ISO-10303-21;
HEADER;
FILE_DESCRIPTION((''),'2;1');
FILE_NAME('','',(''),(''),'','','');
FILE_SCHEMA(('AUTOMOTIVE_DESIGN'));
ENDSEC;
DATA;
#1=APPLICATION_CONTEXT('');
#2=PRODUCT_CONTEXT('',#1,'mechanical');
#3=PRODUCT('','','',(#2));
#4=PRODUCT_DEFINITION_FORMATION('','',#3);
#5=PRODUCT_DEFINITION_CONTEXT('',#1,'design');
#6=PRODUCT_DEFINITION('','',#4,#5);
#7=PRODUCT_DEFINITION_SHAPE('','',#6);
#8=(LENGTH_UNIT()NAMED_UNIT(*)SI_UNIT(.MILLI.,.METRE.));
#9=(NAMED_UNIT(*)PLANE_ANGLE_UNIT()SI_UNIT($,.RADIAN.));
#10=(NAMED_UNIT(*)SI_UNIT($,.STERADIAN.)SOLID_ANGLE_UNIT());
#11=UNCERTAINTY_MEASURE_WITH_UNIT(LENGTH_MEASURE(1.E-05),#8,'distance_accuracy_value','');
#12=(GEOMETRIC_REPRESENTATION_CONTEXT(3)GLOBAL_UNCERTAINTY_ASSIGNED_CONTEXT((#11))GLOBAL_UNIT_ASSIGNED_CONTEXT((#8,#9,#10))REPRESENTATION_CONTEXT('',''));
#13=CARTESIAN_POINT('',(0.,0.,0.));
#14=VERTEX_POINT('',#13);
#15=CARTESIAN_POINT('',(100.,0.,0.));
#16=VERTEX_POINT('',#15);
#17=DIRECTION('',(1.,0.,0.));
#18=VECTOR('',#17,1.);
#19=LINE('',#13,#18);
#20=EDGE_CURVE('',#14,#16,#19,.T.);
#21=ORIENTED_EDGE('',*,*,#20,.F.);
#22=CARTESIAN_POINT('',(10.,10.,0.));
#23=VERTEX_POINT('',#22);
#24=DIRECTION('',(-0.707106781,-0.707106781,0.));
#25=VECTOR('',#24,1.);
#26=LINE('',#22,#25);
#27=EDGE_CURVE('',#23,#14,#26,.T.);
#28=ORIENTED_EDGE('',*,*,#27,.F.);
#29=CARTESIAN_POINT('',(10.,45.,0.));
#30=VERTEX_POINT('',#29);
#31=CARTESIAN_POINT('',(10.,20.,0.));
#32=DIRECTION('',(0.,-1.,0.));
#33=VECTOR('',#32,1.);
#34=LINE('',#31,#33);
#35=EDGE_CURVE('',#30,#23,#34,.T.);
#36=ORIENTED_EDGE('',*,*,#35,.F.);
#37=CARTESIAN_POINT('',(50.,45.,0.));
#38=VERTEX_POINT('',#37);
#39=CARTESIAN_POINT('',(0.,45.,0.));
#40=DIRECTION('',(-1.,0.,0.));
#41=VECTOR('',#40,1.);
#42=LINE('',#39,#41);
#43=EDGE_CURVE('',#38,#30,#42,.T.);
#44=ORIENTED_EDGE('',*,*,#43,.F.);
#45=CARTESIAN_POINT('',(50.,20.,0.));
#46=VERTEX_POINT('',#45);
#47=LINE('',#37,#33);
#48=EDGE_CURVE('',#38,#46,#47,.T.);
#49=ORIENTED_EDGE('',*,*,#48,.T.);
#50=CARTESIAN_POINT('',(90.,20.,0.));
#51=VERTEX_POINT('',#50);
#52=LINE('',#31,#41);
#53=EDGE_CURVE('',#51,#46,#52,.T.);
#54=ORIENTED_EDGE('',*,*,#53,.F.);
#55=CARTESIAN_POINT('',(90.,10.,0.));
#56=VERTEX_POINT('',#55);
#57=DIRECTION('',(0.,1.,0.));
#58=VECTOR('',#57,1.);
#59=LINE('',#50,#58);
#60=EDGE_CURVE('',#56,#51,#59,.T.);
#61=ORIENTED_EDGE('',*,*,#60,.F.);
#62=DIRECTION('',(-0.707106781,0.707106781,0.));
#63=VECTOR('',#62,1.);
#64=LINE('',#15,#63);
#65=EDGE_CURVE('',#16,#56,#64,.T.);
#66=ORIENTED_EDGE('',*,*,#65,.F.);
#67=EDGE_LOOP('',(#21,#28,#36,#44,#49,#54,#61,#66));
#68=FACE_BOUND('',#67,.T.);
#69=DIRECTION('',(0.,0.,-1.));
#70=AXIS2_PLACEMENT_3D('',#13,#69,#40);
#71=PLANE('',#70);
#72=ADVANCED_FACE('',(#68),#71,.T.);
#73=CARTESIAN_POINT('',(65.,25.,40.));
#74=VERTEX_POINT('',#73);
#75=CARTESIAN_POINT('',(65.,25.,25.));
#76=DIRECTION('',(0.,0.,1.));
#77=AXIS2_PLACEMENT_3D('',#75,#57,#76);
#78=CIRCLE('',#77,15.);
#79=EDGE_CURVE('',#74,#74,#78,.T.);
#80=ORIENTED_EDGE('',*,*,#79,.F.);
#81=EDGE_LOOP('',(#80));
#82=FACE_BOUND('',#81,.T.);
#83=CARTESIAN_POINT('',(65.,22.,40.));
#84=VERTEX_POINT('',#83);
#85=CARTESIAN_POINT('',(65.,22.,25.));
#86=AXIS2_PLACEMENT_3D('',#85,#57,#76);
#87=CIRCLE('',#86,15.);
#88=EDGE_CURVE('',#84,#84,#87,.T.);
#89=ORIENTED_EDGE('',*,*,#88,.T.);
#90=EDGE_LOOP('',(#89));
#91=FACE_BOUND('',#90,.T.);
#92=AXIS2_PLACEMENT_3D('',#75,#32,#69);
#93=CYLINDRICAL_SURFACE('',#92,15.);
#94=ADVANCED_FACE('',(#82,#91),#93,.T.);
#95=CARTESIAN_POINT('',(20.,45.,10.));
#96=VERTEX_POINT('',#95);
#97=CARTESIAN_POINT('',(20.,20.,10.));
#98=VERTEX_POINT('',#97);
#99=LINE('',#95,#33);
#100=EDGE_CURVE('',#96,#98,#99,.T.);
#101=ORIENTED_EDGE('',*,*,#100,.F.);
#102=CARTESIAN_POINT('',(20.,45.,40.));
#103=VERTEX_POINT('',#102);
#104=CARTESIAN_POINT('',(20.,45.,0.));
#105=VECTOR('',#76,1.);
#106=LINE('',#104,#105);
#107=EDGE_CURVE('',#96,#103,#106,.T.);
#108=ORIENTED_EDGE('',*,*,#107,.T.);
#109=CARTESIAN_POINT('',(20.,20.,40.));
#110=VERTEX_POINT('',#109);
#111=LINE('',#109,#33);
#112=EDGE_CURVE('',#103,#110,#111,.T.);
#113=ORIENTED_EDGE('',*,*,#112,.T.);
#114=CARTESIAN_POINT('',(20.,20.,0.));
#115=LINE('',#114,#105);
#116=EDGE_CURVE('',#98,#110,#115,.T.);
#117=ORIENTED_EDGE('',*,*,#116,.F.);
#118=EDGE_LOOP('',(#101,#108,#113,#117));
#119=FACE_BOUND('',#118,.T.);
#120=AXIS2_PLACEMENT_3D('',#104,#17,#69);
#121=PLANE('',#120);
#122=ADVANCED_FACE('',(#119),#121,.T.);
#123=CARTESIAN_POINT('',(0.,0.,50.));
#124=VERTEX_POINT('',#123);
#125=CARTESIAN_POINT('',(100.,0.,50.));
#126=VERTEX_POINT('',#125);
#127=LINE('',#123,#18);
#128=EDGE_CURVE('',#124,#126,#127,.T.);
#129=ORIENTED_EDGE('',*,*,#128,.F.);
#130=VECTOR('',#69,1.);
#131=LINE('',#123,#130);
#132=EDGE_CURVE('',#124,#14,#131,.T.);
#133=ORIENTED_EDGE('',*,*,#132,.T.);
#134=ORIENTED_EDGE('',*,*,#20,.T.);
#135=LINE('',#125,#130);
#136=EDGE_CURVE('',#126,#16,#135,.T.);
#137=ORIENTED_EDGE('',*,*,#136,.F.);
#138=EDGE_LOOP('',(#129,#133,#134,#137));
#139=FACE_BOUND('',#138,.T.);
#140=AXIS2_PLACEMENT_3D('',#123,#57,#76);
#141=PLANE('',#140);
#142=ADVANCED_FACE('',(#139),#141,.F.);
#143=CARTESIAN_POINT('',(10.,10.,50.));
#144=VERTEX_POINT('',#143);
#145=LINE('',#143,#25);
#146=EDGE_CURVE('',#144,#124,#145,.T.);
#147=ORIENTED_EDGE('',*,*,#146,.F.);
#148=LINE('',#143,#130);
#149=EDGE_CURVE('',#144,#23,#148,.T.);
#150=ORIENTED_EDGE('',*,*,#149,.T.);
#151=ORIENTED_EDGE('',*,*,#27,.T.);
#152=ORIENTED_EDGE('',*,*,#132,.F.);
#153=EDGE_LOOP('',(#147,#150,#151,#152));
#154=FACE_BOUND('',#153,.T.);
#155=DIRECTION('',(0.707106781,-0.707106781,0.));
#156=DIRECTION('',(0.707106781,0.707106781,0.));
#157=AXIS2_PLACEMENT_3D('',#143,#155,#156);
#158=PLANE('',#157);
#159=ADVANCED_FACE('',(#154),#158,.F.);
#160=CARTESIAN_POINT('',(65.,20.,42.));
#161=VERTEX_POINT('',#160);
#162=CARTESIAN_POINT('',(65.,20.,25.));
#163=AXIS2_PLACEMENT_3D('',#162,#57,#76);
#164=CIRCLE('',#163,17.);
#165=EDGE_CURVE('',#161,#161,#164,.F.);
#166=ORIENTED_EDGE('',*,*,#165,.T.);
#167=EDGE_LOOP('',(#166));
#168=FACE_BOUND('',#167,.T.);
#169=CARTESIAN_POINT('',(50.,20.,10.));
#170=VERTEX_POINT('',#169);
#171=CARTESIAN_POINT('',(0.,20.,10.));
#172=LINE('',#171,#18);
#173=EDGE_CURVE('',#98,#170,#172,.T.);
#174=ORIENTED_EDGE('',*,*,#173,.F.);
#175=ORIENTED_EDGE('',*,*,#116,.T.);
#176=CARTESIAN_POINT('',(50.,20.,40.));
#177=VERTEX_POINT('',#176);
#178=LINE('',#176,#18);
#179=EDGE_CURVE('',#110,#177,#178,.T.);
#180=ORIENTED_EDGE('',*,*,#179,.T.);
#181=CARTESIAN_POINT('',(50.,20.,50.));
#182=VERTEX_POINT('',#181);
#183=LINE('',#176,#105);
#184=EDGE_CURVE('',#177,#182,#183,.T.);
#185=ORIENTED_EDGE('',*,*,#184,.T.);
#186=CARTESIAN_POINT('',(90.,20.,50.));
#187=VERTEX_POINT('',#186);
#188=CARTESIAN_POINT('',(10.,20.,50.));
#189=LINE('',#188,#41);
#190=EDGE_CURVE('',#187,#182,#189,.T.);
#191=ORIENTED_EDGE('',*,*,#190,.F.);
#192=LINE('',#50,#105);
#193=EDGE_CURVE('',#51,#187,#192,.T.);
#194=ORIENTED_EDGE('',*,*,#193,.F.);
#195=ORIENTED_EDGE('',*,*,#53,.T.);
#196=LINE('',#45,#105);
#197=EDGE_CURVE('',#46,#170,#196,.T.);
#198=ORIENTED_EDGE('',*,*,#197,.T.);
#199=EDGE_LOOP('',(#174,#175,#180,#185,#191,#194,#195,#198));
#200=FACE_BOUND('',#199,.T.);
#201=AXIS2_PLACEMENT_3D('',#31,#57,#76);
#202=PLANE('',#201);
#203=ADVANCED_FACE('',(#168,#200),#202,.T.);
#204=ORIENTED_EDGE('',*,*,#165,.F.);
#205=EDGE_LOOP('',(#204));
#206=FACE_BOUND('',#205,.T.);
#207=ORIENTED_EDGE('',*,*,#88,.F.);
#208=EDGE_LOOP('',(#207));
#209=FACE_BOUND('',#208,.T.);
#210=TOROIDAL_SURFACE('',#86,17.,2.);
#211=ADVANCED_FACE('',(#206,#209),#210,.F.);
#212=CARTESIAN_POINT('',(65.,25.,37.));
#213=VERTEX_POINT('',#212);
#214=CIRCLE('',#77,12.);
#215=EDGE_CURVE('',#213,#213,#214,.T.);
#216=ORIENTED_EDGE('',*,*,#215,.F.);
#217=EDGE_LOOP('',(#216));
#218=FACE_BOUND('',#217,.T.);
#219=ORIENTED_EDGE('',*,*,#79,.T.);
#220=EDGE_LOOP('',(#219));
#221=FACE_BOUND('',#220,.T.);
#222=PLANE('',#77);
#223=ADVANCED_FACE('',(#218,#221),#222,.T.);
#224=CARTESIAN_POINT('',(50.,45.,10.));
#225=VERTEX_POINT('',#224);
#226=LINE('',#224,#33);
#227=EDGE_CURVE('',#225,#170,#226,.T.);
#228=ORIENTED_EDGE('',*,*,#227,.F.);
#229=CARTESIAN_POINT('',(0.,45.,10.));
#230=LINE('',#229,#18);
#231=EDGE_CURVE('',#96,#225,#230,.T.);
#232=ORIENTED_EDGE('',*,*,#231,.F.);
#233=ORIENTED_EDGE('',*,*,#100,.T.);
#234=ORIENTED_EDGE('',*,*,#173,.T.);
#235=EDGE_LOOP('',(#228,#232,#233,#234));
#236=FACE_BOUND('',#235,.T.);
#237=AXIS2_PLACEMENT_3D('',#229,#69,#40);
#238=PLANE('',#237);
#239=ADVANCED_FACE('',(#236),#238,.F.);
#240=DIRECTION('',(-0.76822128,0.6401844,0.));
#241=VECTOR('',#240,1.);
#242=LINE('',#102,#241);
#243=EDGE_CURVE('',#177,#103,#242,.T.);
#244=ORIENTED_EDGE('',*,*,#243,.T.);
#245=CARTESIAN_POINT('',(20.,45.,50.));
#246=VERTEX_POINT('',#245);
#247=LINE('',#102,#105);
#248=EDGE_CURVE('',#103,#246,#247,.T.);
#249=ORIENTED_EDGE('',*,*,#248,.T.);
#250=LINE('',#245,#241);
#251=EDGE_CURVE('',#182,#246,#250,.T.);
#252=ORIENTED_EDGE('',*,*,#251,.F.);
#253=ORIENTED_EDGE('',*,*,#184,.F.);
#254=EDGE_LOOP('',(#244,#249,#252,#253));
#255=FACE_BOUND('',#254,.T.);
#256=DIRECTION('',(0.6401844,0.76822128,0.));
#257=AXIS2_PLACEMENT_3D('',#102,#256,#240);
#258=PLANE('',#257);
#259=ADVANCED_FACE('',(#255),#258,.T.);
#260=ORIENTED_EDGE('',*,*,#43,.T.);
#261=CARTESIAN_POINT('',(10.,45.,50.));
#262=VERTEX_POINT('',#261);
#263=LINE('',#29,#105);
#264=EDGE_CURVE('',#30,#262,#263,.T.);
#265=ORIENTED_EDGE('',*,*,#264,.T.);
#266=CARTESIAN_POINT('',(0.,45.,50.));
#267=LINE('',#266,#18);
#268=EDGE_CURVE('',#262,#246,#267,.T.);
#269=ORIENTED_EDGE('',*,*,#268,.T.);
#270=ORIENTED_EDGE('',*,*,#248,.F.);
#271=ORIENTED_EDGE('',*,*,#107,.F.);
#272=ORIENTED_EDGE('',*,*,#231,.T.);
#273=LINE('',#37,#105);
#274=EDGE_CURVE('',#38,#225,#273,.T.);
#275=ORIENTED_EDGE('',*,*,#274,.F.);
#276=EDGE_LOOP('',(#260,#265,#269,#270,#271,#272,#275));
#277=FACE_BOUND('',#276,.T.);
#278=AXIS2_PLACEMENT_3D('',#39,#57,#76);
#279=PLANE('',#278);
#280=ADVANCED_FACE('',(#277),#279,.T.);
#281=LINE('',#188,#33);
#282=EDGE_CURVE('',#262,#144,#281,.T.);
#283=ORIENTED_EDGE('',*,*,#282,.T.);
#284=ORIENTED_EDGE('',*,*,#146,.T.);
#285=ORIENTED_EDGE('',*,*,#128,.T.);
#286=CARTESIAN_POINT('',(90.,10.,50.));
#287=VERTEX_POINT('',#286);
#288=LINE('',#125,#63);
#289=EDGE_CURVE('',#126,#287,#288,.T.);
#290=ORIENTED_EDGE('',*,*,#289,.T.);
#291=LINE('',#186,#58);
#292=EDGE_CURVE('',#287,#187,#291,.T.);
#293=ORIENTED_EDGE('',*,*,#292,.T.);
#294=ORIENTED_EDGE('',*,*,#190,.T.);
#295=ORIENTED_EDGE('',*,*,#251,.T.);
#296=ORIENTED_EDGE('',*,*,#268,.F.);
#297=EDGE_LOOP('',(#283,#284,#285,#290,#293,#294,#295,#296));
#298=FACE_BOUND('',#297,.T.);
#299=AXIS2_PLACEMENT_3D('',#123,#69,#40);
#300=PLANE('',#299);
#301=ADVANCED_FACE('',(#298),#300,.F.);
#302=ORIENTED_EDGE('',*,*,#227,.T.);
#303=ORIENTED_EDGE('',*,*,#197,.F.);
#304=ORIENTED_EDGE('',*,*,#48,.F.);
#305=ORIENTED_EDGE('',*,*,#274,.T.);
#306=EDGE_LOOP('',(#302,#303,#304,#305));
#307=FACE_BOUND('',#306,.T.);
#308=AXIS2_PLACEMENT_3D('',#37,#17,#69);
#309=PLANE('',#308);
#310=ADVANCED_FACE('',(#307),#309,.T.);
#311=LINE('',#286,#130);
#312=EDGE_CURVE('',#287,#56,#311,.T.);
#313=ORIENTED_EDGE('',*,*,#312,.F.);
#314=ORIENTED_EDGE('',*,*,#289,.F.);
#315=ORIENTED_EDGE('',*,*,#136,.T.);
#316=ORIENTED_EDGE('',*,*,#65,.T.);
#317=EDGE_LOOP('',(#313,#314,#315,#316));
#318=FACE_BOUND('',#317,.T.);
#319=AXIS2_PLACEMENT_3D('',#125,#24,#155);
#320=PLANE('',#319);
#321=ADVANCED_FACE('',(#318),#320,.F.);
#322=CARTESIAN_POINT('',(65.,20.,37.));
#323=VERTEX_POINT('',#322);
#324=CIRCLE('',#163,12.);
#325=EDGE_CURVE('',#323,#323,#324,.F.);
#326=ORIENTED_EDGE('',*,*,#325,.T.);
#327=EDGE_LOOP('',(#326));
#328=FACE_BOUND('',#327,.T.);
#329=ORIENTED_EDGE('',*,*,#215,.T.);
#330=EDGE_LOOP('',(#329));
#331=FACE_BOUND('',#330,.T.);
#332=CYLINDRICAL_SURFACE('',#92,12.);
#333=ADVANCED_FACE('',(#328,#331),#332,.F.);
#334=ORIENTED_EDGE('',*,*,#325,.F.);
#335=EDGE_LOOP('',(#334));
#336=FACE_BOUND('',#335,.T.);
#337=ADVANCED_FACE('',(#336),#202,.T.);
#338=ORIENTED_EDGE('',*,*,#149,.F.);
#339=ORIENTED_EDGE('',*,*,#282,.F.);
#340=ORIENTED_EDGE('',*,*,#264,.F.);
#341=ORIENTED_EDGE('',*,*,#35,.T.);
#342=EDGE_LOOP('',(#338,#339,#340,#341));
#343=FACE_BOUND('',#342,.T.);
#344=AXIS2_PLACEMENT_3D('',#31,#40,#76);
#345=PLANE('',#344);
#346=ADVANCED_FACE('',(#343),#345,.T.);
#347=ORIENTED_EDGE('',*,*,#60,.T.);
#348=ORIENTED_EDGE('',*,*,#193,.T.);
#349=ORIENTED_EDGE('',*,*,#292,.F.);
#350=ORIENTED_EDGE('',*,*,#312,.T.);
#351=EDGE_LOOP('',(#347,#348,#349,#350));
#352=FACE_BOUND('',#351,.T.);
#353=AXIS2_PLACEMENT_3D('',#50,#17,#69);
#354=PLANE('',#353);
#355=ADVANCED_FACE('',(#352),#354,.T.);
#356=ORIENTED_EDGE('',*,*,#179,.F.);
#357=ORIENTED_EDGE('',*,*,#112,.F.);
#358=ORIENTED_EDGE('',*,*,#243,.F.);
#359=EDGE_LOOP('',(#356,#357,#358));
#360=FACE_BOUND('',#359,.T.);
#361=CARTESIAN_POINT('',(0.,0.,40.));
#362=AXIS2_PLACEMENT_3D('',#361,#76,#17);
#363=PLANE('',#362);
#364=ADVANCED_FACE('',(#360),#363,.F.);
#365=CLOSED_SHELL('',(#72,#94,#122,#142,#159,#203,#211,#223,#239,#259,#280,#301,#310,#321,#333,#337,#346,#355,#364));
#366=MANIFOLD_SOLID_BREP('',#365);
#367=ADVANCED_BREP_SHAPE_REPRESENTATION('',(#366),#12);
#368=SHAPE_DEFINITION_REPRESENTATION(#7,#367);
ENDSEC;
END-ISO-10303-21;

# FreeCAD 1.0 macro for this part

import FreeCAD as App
import Part
import Sketcher
from FreeCAD import Vector


def edges_at(feature, points):
    """Names of the edges that pass closest to the given points."""
    edges = feature.Shape.Edges
    near = lambda p: min(range(len(edges)), key=lambda i: edges[i].distToShape(Part.Vertex(*p))[0])
    return sorted({f"Edge{near(p) + 1}" for p in points})

doc = App.newDocument("Part")
params = doc.addObject("Spreadsheet::Sheet", "Params")
for row, (alias, value) in enumerate([
    ("sketch1_width", "100 mm"),
    ("sketch1_width2", "80 mm"),
    ("pad1_length", "50 mm"),
    ("sketch2_width", "80 mm"),
    ("sketch2_height", "10 mm"),
    ("pad2_length", "50 mm"),
    ("sketch3_diameter", "30 mm"),
    ("sketch3_diameter2", "24 mm"),
    ("pad3_length", "5 mm"),
    ("fillet_radius", "2 mm"),
    ("sketch4_width", "10 mm"),
    ("sketch4_width2", "30 mm"),
    ("pad4_length", "25 mm"),
    ("sketch5_width", "30 mm"),
    ("sketch5_height", "25 mm"),
    ("pad5_length", "10 mm"),
], start=1):
    params.set(f"A{row}", alias)
    params.set(f"B{row}", "=" + value)
    params.setAlias(f"B{row}", alias)

body = doc.addObject("PartDesign::Body", "Body")

# Sketch on XY plane
sketch1 = body.newObject("Sketcher::SketchObject", "Sketch")
sketch1.AttachmentSupport = (doc.getObject("XY_Plane"), [""])
sketch1.MapMode = "FlatFace"
sketch1.addGeometry(Part.LineSegment(Vector(0, 0, 0), Vector(100, 0, 0)), False)
sketch1.addGeometry(Part.LineSegment(Vector(100, 0, 0), Vector(90, 10, 0)), False)
sketch1.addGeometry(Part.LineSegment(Vector(90, 10, 0), Vector(10, 10, 0)), False)
sketch1.addGeometry(Part.LineSegment(Vector(10, 10, 0), Vector(0, 0, 0)), False)
sketch1.addConstraint(Sketcher.Constraint("Coincident", 0, 2, 1, 1))
sketch1.addConstraint(Sketcher.Constraint("Coincident", 1, 2, 2, 1))
sketch1.addConstraint(Sketcher.Constraint("Coincident", 2, 2, 3, 1))
sketch1.addConstraint(Sketcher.Constraint("Coincident", 3, 2, 0, 1))
sketch1.addConstraint(Sketcher.Constraint("Horizontal", 0))
sketch1.addConstraint(Sketcher.Constraint("Horizontal", 2))
sketch1.addConstraint(Sketcher.Constraint("Coincident", 3, 2, -1, 1))
sketch1.addConstraint(Sketcher.Constraint("Perpendicular", 1, 3))
sketch1.addConstraint(Sketcher.Constraint("Equal", 1, 3))
sketch1.addConstraint(Sketcher.Constraint("DistanceX", 0, 1, 0, 2, 100.0))
sketch1.addConstraint(Sketcher.Constraint("DistanceX", 2, 2, 2, 1, 80.0))
sketch1.setExpression("Constraints[9]", "Params.sketch1_width")
sketch1.setExpression("Constraints[10]", "Params.sketch1_width2")
pad1 = body.newObject("PartDesign::Pad", "Pad")
pad1.Profile = sketch1
pad1.setExpression("Length", "Params.pad1_length")

# Sketch on XY plane
sketch2 = body.newObject("Sketcher::SketchObject", "Sketch001")
sketch2.AttachmentSupport = (doc.getObject("XY_Plane"), [""])
sketch2.MapMode = "FlatFace"
sketch2.AttachmentOffset = App.Placement(Vector(0, 0, 50), App.Rotation())
sketch2.addGeometry(Part.LineSegment(Vector(10, 20, 0), Vector(10, 10, 0)), False)
sketch2.addGeometry(Part.LineSegment(Vector(10, 10, 0), Vector(90, 10, 0)), False)
sketch2.addGeometry(Part.LineSegment(Vector(90, 10, 0), Vector(90, 20, 0)), False)
sketch2.addGeometry(Part.LineSegment(Vector(90, 20, 0), Vector(10, 20, 0)), False)
sketch2.addConstraint(Sketcher.Constraint("Coincident", 0, 2, 1, 1))
sketch2.addConstraint(Sketcher.Constraint("Coincident", 1, 2, 2, 1))
sketch2.addConstraint(Sketcher.Constraint("Coincident", 2, 2, 3, 1))
sketch2.addConstraint(Sketcher.Constraint("Coincident", 3, 2, 0, 1))
sketch2.addConstraint(Sketcher.Constraint("Vertical", 0))
sketch2.addConstraint(Sketcher.Constraint("Horizontal", 1))
sketch2.addConstraint(Sketcher.Constraint("Vertical", 2))
sketch2.addConstraint(Sketcher.Constraint("Horizontal", 3))
sketch2.addConstraint(Sketcher.Constraint("DistanceX", 1, 1, 1, 2, 80.0))
sketch2.addConstraint(Sketcher.Constraint("DistanceY", 0, 2, 0, 1, 10.0))
sketch2.addConstraint(Sketcher.Constraint("DistanceX", -1, 1, 0, 2, 10.0))
sketch2.addConstraint(Sketcher.Constraint("DistanceY", -1, 1, 0, 2, 10.0))
sketch2.setExpression("Constraints[8]", "Params.sketch2_width")
sketch2.setExpression("Constraints[9]", "Params.sketch2_height")
pad2 = body.newObject("PartDesign::Pad", "Pad001")
pad2.Profile = sketch2
pad2.setExpression("Length", "Params.pad2_length")
pad2.Reversed = True

# Sketch on XZ plane
sketch3 = body.newObject("Sketcher::SketchObject", "Sketch002")
sketch3.AttachmentSupport = (doc.getObject("XZ_Plane"), [""])
sketch3.MapMode = "FlatFace"
sketch3.AttachmentOffset = App.Placement(Vector(0, 0, -20), App.Rotation())
sketch3.addGeometry(Part.Circle(Vector(65, 25, 0), Vector(0, 0, 1), 15), False)
sketch3.addGeometry(Part.Circle(Vector(65, 25, 0), Vector(0, 0, 1), 12), False)
sketch3.addConstraint(Sketcher.Constraint("Coincident", 1, 3, 0, 3))
sketch3.addConstraint(Sketcher.Constraint("Diameter", 0, 30.0))
sketch3.addConstraint(Sketcher.Constraint("Diameter", 1, 24.0))
sketch3.addConstraint(Sketcher.Constraint("DistanceX", -1, 1, 0, 3, 65.0))
sketch3.addConstraint(Sketcher.Constraint("DistanceY", -1, 1, 0, 3, 25.0))
sketch3.setExpression("Constraints[1]", "Params.sketch3_diameter")
sketch3.setExpression("Constraints[2]", "Params.sketch3_diameter2")
pad3 = body.newObject("PartDesign::Pad", "Pad002")
pad3.Profile = sketch3
pad3.setExpression("Length", "Params.pad3_length")
pad3.Reversed = True
doc.recompute()

fillet = body.newObject("PartDesign::Fillet", "Fillet")
fillet.Base = (pad3, edges_at(pad3, [(50, 20, 25)]))
fillet.setExpression("Radius", "Params.fillet_radius")

# Sketch on XZ plane
sketch4 = body.newObject("Sketcher::SketchObject", "Sketch003")
sketch4.AttachmentSupport = (doc.getObject("XZ_Plane"), [""])
sketch4.MapMode = "FlatFace"
sketch4.AttachmentOffset = App.Placement(Vector(0, 0, -20), App.Rotation())
sketch4.addGeometry(Part.LineSegment(Vector(10, 0, 0), Vector(10, 50, 0)), False)
sketch4.addGeometry(Part.LineSegment(Vector(10, 50, 0), Vector(20, 50, 0)), False)
sketch4.addGeometry(Part.LineSegment(Vector(20, 50, 0), Vector(20, 10, 0)), False)
sketch4.addGeometry(Part.LineSegment(Vector(20, 10, 0), Vector(50, 10, 0)), False)
sketch4.addGeometry(Part.LineSegment(Vector(50, 10, 0), Vector(50, 0, 0)), False)
sketch4.addGeometry(Part.LineSegment(Vector(50, 0, 0), Vector(10, 0, 0)), False)
sketch4.addConstraint(Sketcher.Constraint("Coincident", 0, 2, 1, 1))
sketch4.addConstraint(Sketcher.Constraint("Coincident", 1, 2, 2, 1))
sketch4.addConstraint(Sketcher.Constraint("Coincident", 2, 2, 3, 1))
sketch4.addConstraint(Sketcher.Constraint("Coincident", 3, 2, 4, 1))
sketch4.addConstraint(Sketcher.Constraint("Coincident", 4, 2, 5, 1))
sketch4.addConstraint(Sketcher.Constraint("Coincident", 5, 2, 0, 1))
sketch4.addConstraint(Sketcher.Constraint("Vertical", 0))
sketch4.addConstraint(Sketcher.Constraint("Horizontal", 1))
sketch4.addConstraint(Sketcher.Constraint("Vertical", 2))
sketch4.addConstraint(Sketcher.Constraint("Horizontal", 3))
sketch4.addConstraint(Sketcher.Constraint("Vertical", 4))
sketch4.addConstraint(Sketcher.Constraint("Horizontal", 5))
sketch4.addConstraint(Sketcher.Constraint("PointOnObject", 4, 2, -1))
sketch4.addConstraint(Sketcher.Constraint("Equal", 5, 2))
sketch4.addConstraint(Sketcher.Constraint("Equal", 1, 4))
sketch4.addConstraint(Sketcher.Constraint("DistanceX", 1, 1, 1, 2, 10.0))
sketch4.addConstraint(Sketcher.Constraint("DistanceX", 3, 1, 3, 2, 30.0))
sketch4.addConstraint(Sketcher.Constraint("DistanceX", -1, 1, 0, 2, 10.0))
sketch4.setExpression("Constraints[15]", "Params.sketch4_width")
sketch4.setExpression("Constraints[16]", "Params.sketch4_width2")
pad4 = body.newObject("PartDesign::Pad", "Pad003")
pad4.Profile = sketch4
pad4.setExpression("Length", "Params.pad4_length")
pad4.Reversed = True

# Sketch on XY plane
sketch5 = body.newObject("Sketcher::SketchObject", "Sketch004")
sketch5.AttachmentSupport = (doc.getObject("XY_Plane"), [""])
sketch5.MapMode = "FlatFace"
sketch5.AttachmentOffset = App.Placement(Vector(0, 0, 50), App.Rotation())
sketch5.addGeometry(Part.LineSegment(Vector(50, 20, 0), Vector(20, 45, 0)), False)
sketch5.addGeometry(Part.LineSegment(Vector(20, 45, 0), Vector(20, 20, 0)), False)
sketch5.addGeometry(Part.LineSegment(Vector(20, 20, 0), Vector(50, 20, 0)), False)
sketch5.addConstraint(Sketcher.Constraint("Coincident", 0, 2, 1, 1))
sketch5.addConstraint(Sketcher.Constraint("Coincident", 1, 2, 2, 1))
sketch5.addConstraint(Sketcher.Constraint("Coincident", 2, 2, 0, 1))
sketch5.addConstraint(Sketcher.Constraint("Vertical", 1))
sketch5.addConstraint(Sketcher.Constraint("Horizontal", 2))
sketch5.addConstraint(Sketcher.Constraint("DistanceX", 2, 1, 2, 2, 30.0))
sketch5.addConstraint(Sketcher.Constraint("DistanceY", 1, 2, 1, 1, 25.0))
sketch5.addConstraint(Sketcher.Constraint("DistanceX", -1, 1, 0, 2, 20.0))
sketch5.addConstraint(Sketcher.Constraint("DistanceY", -1, 1, 0, 2, 45.0))
sketch5.setExpression("Constraints[5]", "Params.sketch5_width")
sketch5.setExpression("Constraints[6]", "Params.sketch5_height")
pad5 = body.newObject("PartDesign::Pad", "Pad004")
pad5.Profile = sketch5
pad5.setExpression("Length", "Params.pad5_length")
pad5.Reversed = True

doc.recompute()
